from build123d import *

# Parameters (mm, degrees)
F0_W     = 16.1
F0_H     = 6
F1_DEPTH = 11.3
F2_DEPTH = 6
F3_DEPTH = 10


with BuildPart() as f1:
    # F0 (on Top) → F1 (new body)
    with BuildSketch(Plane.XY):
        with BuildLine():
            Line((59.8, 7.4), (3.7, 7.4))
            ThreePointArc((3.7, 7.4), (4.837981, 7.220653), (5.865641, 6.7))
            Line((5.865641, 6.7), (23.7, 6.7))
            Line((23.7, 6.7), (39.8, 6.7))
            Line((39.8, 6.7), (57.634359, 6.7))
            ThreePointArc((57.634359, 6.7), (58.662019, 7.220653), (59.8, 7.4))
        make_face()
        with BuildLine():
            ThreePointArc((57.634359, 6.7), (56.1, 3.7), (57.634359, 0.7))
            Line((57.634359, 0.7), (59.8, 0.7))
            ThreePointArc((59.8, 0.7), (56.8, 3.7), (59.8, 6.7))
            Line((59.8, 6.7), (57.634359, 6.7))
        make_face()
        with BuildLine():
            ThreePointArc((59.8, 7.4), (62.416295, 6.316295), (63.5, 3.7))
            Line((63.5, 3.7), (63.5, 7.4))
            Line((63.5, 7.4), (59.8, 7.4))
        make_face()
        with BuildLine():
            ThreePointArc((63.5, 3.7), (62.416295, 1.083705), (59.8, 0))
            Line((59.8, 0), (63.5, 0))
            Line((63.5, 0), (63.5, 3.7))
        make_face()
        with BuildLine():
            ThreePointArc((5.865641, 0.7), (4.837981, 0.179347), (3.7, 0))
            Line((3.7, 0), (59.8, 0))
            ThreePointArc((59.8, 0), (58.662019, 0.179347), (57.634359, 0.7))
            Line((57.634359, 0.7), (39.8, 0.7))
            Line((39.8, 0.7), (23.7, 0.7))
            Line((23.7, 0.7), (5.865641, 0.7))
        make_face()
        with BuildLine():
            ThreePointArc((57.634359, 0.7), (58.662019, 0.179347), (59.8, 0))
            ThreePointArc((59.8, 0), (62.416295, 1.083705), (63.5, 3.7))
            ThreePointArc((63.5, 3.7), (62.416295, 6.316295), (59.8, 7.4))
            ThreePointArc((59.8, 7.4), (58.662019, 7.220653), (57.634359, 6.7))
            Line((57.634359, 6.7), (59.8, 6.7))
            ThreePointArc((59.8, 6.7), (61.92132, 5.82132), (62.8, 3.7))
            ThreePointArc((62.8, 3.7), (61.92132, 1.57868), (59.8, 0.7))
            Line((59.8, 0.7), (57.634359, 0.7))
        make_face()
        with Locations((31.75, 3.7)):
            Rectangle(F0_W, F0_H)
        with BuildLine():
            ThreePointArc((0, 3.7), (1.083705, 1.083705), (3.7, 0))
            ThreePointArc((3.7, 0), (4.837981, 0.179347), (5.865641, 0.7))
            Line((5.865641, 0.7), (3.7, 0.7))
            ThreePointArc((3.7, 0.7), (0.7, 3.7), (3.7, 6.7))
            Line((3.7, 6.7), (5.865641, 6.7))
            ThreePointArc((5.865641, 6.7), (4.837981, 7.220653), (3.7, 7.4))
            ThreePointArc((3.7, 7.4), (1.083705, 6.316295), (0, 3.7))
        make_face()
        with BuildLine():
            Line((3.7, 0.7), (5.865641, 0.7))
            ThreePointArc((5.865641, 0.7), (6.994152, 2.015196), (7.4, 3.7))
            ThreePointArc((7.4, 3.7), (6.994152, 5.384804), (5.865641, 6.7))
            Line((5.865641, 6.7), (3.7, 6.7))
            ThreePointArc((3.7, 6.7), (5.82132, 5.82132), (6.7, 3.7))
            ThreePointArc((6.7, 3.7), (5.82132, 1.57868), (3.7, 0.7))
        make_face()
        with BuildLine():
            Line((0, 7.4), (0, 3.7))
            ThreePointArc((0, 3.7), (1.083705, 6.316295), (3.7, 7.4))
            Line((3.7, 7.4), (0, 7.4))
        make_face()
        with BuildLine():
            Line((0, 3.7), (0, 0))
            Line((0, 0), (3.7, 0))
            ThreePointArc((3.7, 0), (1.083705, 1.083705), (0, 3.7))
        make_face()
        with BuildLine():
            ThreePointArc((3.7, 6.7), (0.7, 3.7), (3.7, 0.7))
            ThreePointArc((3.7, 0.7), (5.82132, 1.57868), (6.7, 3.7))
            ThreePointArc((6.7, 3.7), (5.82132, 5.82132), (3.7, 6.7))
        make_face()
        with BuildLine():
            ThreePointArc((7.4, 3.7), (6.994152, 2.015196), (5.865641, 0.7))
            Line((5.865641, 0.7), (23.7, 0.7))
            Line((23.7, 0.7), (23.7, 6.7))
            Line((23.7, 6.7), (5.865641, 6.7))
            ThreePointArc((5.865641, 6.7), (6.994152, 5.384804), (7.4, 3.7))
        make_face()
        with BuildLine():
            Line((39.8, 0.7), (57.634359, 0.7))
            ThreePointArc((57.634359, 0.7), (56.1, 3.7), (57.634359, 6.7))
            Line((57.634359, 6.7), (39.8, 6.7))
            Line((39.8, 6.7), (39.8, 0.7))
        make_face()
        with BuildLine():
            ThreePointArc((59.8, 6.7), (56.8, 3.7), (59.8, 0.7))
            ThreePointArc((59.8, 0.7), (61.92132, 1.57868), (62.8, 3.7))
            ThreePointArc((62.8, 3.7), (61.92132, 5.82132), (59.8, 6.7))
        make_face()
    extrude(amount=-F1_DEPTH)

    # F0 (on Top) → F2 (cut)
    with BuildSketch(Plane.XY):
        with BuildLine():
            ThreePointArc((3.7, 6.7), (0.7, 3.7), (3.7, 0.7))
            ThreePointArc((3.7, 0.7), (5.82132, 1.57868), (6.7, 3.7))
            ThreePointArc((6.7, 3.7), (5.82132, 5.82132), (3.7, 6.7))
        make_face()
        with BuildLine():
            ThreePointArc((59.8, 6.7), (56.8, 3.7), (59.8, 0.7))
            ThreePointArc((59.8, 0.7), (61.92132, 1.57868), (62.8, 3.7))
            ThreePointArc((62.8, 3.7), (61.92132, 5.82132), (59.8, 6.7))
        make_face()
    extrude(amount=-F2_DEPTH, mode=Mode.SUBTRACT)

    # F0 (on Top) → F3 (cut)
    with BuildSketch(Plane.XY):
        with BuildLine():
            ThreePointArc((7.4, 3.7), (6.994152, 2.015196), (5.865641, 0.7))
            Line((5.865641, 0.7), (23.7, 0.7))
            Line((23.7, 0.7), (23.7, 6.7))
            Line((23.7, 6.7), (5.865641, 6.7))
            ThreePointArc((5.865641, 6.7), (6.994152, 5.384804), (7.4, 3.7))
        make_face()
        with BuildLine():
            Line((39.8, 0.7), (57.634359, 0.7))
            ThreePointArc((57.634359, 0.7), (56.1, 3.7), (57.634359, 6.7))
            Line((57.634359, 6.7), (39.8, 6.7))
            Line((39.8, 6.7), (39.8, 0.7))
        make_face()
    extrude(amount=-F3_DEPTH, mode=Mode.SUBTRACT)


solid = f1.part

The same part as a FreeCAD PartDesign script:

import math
import FreeCAD as App
import Part
import Sketcher

V = App.Vector
Q = App.Units.Quantity


def add_polygon(sketch, points):
    """Adds a closed chain of lines whose ends are joined by coincident constraints."""
    first, n = sketch.GeometryCount, len(points)
    for a, b in zip(points, points[1:] + points[:1]):
        sketch.addGeometry(Part.LineSegment(App.Vector(*a, 0), App.Vector(*b, 0)), False)
    for i in range(n):
        sketch.addConstraint(Sketcher.Constraint("Coincident", first + i, 2, first + (i + 1) % n, 1))

doc = App.newDocument("Part")
body = doc.addObject("PartDesign::Body", "Body")

sketch1 = doc.addObject("Sketcher::SketchObject", "Sketch")
body.addObject(sketch1)
sketch1.AttachmentSupport = (doc.XY_Plane, [""])
sketch1.MapMode = "FlatFace"
add_polygon(sketch1, [(64, 0), (64, 7), (0, 7), (0, 0)])
sketch1.addConstraint(Sketcher.Constraint("Vertical", 0))
sketch1.addConstraint(Sketcher.Constraint("Horizontal", 1))
sketch1.addConstraint(Sketcher.Constraint("Vertical", 2))
sketch1.addConstraint(Sketcher.Constraint("Horizontal", 3))
sketch1.addConstraint(Sketcher.Constraint("Coincident", 2, 2, -1, 1))
sketch1.addConstraint(Sketcher.Constraint("DistanceX", 1, 2, 1, 1, Q("63.5 mm")))
sketch1.addConstraint(Sketcher.Constraint("DistanceY", 0, 1, 0, 2, Q("7.4 mm")))
pad1 = doc.addObject("PartDesign::Pad", "Pad")
body.addObject(pad1)
pad1.Profile = sketch1
pad1.Length = 11.3
pad1.Reversed = True

sketch2 = doc.addObject("Sketcher::SketchObject", "Sketch001")
body.addObject(sketch2)
sketch2.AttachmentSupport = (doc.XY_Plane, [""])
sketch2.MapMode = "FlatFace"
sketch2.addGeometry(Part.ArcOfCircle(Part.Circle(V(3.7, 3.7, 0), V(0, 0, 1), 3), math.radians(90), math.radians(270)), False)
sketch2.addGeometry(Part.ArcOfCircle(Part.Circle(V(3.7, 3.7, 0), V(0, 0, 1), 3), math.radians(-90), math.radians(0)), False)
sketch2.addGeometry(Part.ArcOfCircle(Part.Circle(V(3.7, 3.7, 0), V(0, 0, 1), 3), math.radians(0), math.radians(90)), False)
sketch2.addGeometry(Part.ArcOfCircle(Part.Circle(V(59.8, 3.7, 0), V(0, 0, 1), 3), math.radians(90), math.radians(270)), False)
sketch2.addGeometry(Part.ArcOfCircle(Part.Circle(V(59.8, 3.7, 0), V(0, 0, 1), 3), math.radians(-90), math.radians(0)), False)
sketch2.addGeometry(Part.ArcOfCircle(Part.Circle(V(59.8, 3.7, 0), V(0, 0, 1), 3), math.radians(0), math.radians(90)), False)
sketch2.addConstraint(Sketcher.Constraint("Tangent", 0, 2, 1, 1))
sketch2.addConstraint(Sketcher.Constraint("Tangent", 1, 2, 2, 1))
sketch2.addConstraint(Sketcher.Constraint("Tangent", 2, 2, 0, 1))
sketch2.addConstraint(Sketcher.Constraint("Tangent", 3, 2, 4, 1))
sketch2.addConstraint(Sketcher.Constraint("Tangent", 4, 2, 5, 1))
sketch2.addConstraint(Sketcher.Constraint("Tangent", 5, 2, 3, 1))
sketch2.addConstraint(Sketcher.Constraint("Equal", 2, 3))
sketch2.addConstraint(Sketcher.Constraint("Horizontal", 2, 3, 3, 3))
sketch2.addConstraint(Sketcher.Constraint("Horizontal", 5, 3, 1, 2))
sketch2.addConstraint(Sketcher.Constraint("Horizontal", 1, 2, 4, 2))
sketch2.addConstraint(Sketcher.Constraint("Vertical", 2, 3, 0, 2))
sketch2.addConstraint(Sketcher.Constraint("Vertical", 0, 2, 2, 2))
sketch2.addConstraint(Sketcher.Constraint("Vertical", 5, 3, 3, 2))
sketch2.addConstraint(Sketcher.Constraint("Vertical", 3, 2, 5, 2))
sketch2.addConstraint(Sketcher.Constraint("Radius", 0, Q("3 mm")))
sketch2.addConstraint(Sketcher.Constraint("DistanceX", -1, 1, 0, 3, Q("3.7 mm")))
sketch2.addConstraint(Sketcher.Constraint("DistanceY", -1, 1, 0, 3, Q("3.7 mm")))
sketch2.addConstraint(Sketcher.Constraint("DistanceX", -1, 1, 3, 3, Q("59.8 mm")))
pocket1 = doc.addObject("PartDesign::Pocket", "Pocket")
body.addObject(pocket1)
pocket1.Profile = sketch2
pocket1.Length = 6

sketch3 = doc.addObject("Sketcher::SketchObject", "Sketch002")
body.addObject(sketch3)
sketch3.AttachmentSupport = (doc.XY_Plane, [""])
sketch3.MapMode = "FlatFace"
sketch3.addGeometry(Part.ArcOfCircle(Part.Circle(V(3.7, 3.7, 0), V(0, 0, 1), 3.7), math.radians(-54), math.radians(0)), False)
sketch3.addGeometry(Part.LineSegment(V(5.9, 0.7, 0), V(23.7, 0.7, 0)), False)
sketch3.addGeometry(Part.LineSegment(V(23.7, 0.7, 0), V(23.7, 6.7, 0)), False)
sketch3.addGeometry(Part.LineSegment(V(23.7, 6.7, 0), V(5.9, 6.7, 0)), False)
sketch3.addGeometry(Part.ArcOfCircle(Part.Circle(V(3.7, 3.7, 0), V(0, 0, 1), 3.7), math.radians(0), math.radians(54)), False)
sketch3.addGeometry(Part.LineSegment(V(39.8, 0.7, 0), V(57.6, 0.7, 0)), False)
sketch3.addGeometry(Part.ArcOfCircle(Part.Circle(V(59.8, 3.7, 0), V(0, 0, 1), 3.7), math.radians(126), math.radians(234)), False)
sketch3.addGeometry(Part.LineSegment(V(57.6, 6.7, 0), V(39.8, 6.7, 0)), False)
sketch3.addGeometry(Part.LineSegment(V(39.8, 6.7, 0), V(39.8, 0.7, 0)), False)
sketch3.addConstraint(Sketcher.Constraint("Coincident", 0, 1, 1, 1))
sketch3.addConstraint(Sketcher.Constraint("Coincident", 1, 2, 2, 1))
sketch3.addConstraint(Sketcher.Constraint("Coincident", 2, 2, 3, 1))
sketch3.addConstraint(Sketcher.Constraint("Coincident", 3, 2, 4, 2))
sketch3.addConstraint(Sketcher.Constraint("Tangent", 4, 1, 0, 2))
sketch3.addConstraint(Sketcher.Constraint("Coincident", 5, 2, 6, 2))
sketch3.addConstraint(Sketcher.Constraint("Coincident", 6, 1, 7, 1))
sketch3.addConstraint(Sketcher.Constraint("Coincident", 7, 2, 8, 1))
sketch3.addConstraint(Sketcher.Constraint("Coincident", 8, 2, 5, 1))
sketch3.addConstraint(Sketcher.Constraint("Horizontal", 1))
sketch3.addConstraint(Sketcher.Constraint("Vertical", 2))
sketch3.addConstraint(Sketcher.Constraint("Horizontal", 3))
sketch3.addConstraint(Sketcher.Constraint("Horizontal", 5))
sketch3.addConstraint(Sketcher.Constraint("Horizontal", 7))
sketch3.addConstraint(Sketcher.Constraint("Vertical", 8))
sketch3.addConstraint(Sketcher.Constraint("Equal", 0, 4))
sketch3.addConstraint(Sketcher.Constraint("Equal", 4, 6))
sketch3.addConstraint(Sketcher.Constraint("Horizontal", 4, 3, 6, 3))
sketch3.addConstraint(Sketcher.Constraint("Horizontal", 6, 3, 4, 1))
sketch3.addConstraint(Sketcher.Constraint("Horizontal", 1, 2, 5, 2))
sketch3.addConstraint(Sketcher.Constraint("Horizontal", 3, 2, 6, 1))
sketch3.addConstraint(Sketcher.Constraint("Vertical", 0, 1, 3, 2))
sketch3.addConstraint(Sketcher.Constraint("Equal", 3, 5))
sketch3.addConstraint(Sketcher.Constraint("Radius", 0, Q("3.699998 mm")))
sketch3.addConstraint(Sketcher.Constraint("DistanceY", 2, 1, 2, 2, Q("6 mm")))
sketch3.addConstraint(Sketcher.Constraint("DistanceX", 0, 3, 1, 2, Q("19.999998 mm")))
sketch3.addConstraint(Sketcher.Constraint("DistanceX", -1, 1, 0, 3, Q("3.700002 mm")))
sketch3.addConstraint(Sketcher.Constraint("DistanceY", -1, 1, 0, 3, Q("3.699999 mm")))
sketch3.addConstraint(Sketcher.Constraint("DistanceX", -1, 1, 6, 3, Q("59.8 mm")))
pocket2 = doc.addObject("PartDesign::Pocket", "Pocket001")
body.addObject(pocket2)
pocket2.Profile = sketch3
pocket2.Length = 10

doc.recompute()
